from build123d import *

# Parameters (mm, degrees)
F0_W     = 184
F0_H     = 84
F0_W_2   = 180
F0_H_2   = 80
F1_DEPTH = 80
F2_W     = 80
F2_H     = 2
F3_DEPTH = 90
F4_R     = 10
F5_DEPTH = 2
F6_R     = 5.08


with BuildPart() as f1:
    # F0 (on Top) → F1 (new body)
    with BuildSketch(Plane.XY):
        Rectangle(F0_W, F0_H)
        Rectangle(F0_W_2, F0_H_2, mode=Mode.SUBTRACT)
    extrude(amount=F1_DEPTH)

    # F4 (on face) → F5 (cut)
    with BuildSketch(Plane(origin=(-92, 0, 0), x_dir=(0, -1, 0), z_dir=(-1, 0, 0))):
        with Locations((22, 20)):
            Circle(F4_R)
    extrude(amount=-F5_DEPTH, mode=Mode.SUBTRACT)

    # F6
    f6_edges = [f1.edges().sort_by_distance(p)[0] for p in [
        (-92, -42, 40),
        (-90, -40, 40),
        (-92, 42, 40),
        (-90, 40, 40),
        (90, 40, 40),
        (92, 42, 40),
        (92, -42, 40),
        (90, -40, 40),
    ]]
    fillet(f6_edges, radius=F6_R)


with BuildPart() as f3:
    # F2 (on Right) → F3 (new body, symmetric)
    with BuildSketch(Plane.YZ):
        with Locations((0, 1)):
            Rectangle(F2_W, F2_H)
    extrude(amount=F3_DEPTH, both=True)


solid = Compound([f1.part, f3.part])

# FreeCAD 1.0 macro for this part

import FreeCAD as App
import Part
import Sketcher

V = App.Vector


def edges_at(feature, points):
    """Names of the edges that pass closest to the given points."""
    edges = feature.Shape.Edges
    near = lambda p: min(range(len(edges)), key=lambda i: edges[i].distToShape(Part.Vertex(*p))[0])
    return sorted({f"Edge{near(p) + 1}" for p in points})

doc = App.newDocument("Part")
body = doc.addObject("PartDesign::Body", "Body")

# Sketch on XY plane
sketch1 = doc.addObject("Sketcher::SketchObject", "Sketch")
body.addObject(sketch1)
sketch1.AttachmentSupport = (doc.XY_Plane, [""])
sketch1.MapMode = "FlatFace"
sketch1.addGeometry(Part.LineSegment(V(-92, 42, 0), V(-92, -42, 0)), False)
sketch1.addGeometry(Part.LineSegment(V(-92, -42, 0), V(92, -42, 0)), False)
sketch1.addGeometry(Part.LineSegment(V(92, -42, 0), V(92, 42, 0)), False)
sketch1.addGeometry(Part.LineSegment(V(92, 42, 0), V(-92, 42, 0)), False)
sketch1.addGeometry(Part.LineSegment(V(90, -40, 0), V(-90, -40, 0)), False)
sketch1.addGeometry(Part.LineSegment(V(-90, -40, 0), V(-90, 40, 0)), False)
sketch1.addGeometry(Part.LineSegment(V(-90, 40, 0), V(90, 40, 0)), False)
sketch1.addGeometry(Part.LineSegment(V(90, 40, 0), V(90, -40, 0)), False)
sketch1.addConstraint(Sketcher.Constraint("Coincident", 0, 2, 1, 1))
sketch1.addConstraint(Sketcher.Constraint("Coincident", 1, 2, 2, 1))
sketch1.addConstraint(Sketcher.Constraint("Coincident", 2, 2, 3, 1))
sketch1.addConstraint(Sketcher.Constraint("Coincident", 3, 2, 0, 1))
sketch1.addConstraint(Sketcher.Constraint("Coincident", 4, 2, 5, 1))
sketch1.addConstraint(Sketcher.Constraint("Coincident", 5, 2, 6, 1))
sketch1.addConstraint(Sketcher.Constraint("Coincident", 6, 2, 7, 1))
sketch1.addConstraint(Sketcher.Constraint("Coincident", 7, 2, 4, 1))
sketch1.addConstraint(Sketcher.Constraint("Vertical", 0))
sketch1.addConstraint(Sketcher.Constraint("Horizontal", 1))
sketch1.addConstraint(Sketcher.Constraint("Vertical", 2))
sketch1.addConstraint(Sketcher.Constraint("Horizontal", 3))
sketch1.addConstraint(Sketcher.Constraint("Horizontal", 4))
sketch1.addConstraint(Sketcher.Constraint("Vertical", 5))
sketch1.addConstraint(Sketcher.Constraint("Horizontal", 6))
sketch1.addConstraint(Sketcher.Constraint("Vertical", 7))
sketch1.addConstraint(Sketcher.Constraint("Symmetric", 0, 2, 2, 2, -1, 1))
sketch1.addConstraint(Sketcher.Constraint("Symmetric", 4, 2, 6, 2, -1, 1))
sketch1.addConstraint(Sketcher.Constraint("DistanceX", 1, 1, 1, 2, 184.0))
sketch1.addConstraint(Sketcher.Constraint("DistanceX", 4, 2, 4, 1, 180.0))
sketch1.addConstraint(Sketcher.Constraint("DistanceY", 0, 2, 0, 1, 84.0))
sketch1.addConstraint(Sketcher.Constraint("DistanceY", 5, 1, 5, 2, 80.0))
pad1 = doc.addObject("PartDesign::Pad", "Pad")
body.addObject(pad1)
pad1.Profile = sketch1
pad1.Length = 80

# Sketch on YZ plane
sketch2 = doc.addObject("Sketcher::SketchObject", "Sketch001")
body.addObject(sketch2)
sketch2.AttachmentSupport = (doc.YZ_Plane, [""])
sketch2.MapMode = "FlatFace"
sketch2.AttachmentOffset = App.Placement(V(0, 0, -92), App.Rotation())
sketch2.addGeometry(Part.Circle(V(-22, 20, 0), V(0, 0, 1), 10), False)
sketch2.addConstraint(Sketcher.Constraint("Diameter", 0, 20.0))
sketch2.addConstraint(Sketcher.Constraint("DistanceX", 0, 3, -1, 1, 22.0))
sketch2.addConstraint(Sketcher.Constraint("DistanceY", -1, 1, 0, 3, 20.0))
pocket1 = doc.addObject("PartDesign::Pocket", "Pocket")
body.addObject(pocket1)
pocket1.Profile = sketch2
pocket1.Length = 2
pocket1.Reversed = True
doc.recompute()

fillet = doc.addObject("PartDesign::Fillet", "Fillet")
body.addObject(fillet)
fillet.Base = (pocket1, edges_at(pocket1, [
    (-92, -42, 40),
    (-90, -40, 40),
    (-92, 42, 40),
    (-90, 40, 40),
    (90, 40, 40),
    (92, 42, 40),
    (92, -42, 40),
    (90, -40, 40),
]))
fillet.Radius = 5.08
body2 = doc.addObject("PartDesign::Body", "Body001")

# Sketch on YZ plane
sketch3 = doc.addObject("Sketcher::SketchObject", "Sketch002")
body2.addObject(sketch3)
sketch3.AttachmentSupport = (doc.getObject("YZ_Plane001"), [""])
sketch3.MapMode = "FlatFace"
sketch3.addGeometry(Part.LineSegment(V(-40, 2, 0), V(-40, 0, 0)), False)
sketch3.addGeometry(Part.LineSegment(V(-40, 0, 0), V(40, 0, 0)), False)
sketch3.addGeometry(Part.LineSegment(V(40, 0, 0), V(40, 2, 0)), False)
sketch3.addGeometry(Part.LineSegment(V(40, 2, 0), V(-40, 2, 0)), False)
sketch3.addConstraint(Sketcher.Constraint("Coincident", 0, 2, 1, 1))
sketch3.addConstraint(Sketcher.Constraint("Coincident", 1, 2, 2, 1))
sketch3.addConstraint(Sketcher.Constraint("Coincident", 2, 2, 3, 1))
sketch3.addConstraint(Sketcher.Constraint("Coincident", 3, 2, 0, 1))
sketch3.addConstraint(Sketcher.Constraint("Vertical", 0))
sketch3.addConstraint(Sketcher.Constraint("Horizontal", 1))
sketch3.addConstraint(Sketcher.Constraint("Vertical", 2))
sketch3.addConstraint(Sketcher.Constraint("Horizontal", 3))
sketch3.addConstraint(Sketcher.Constraint("Symmetric", 0, 2, 1, 2, -1, 1))
sketch3.addConstraint(Sketcher.Constraint("DistanceX", 1, 1, 1, 2, 80.0))
sketch3.addConstraint(Sketcher.Constraint("DistanceY", 0, 2, 0, 1, 2.0))
pad2 = doc.addObject("PartDesign::Pad", "Pad001")
body2.addObject(pad2)
pad2.Profile = sketch3
pad2.Length = 180
pad2.Midplane = True

doc.recompute()
